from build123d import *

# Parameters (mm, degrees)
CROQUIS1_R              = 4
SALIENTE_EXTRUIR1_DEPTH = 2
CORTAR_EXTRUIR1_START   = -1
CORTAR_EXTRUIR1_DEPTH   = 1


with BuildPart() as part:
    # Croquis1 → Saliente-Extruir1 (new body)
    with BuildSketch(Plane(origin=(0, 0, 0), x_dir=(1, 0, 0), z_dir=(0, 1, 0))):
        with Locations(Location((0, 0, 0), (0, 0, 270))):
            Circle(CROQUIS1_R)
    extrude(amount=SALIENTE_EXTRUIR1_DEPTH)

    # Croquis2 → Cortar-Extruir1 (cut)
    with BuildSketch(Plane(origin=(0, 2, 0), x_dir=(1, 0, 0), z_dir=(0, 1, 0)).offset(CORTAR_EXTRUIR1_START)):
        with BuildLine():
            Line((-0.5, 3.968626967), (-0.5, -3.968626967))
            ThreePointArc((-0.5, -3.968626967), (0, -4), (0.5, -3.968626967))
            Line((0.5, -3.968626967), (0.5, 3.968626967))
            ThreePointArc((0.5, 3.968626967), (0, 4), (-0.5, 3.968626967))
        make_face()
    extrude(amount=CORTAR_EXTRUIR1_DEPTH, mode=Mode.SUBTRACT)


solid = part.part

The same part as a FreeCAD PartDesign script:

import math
import FreeCAD as App
import Part
import Sketcher
from FreeCAD import Vector

doc = App.newDocument("Part")
body = doc.addObject("PartDesign::Body", "Body")

sketch1 = body.newObject("Sketcher::SketchObject", "Sketch")
sketch1.AttachmentSupport = (doc.getObject("XZ_Plane"), [""])
sketch1.MapMode = "FlatFace"
sketch1.addGeometry(Part.Circle(Vector(0, 0, 0), Vector(0, 0, 1), 4), False)
sketch1.addConstraint(Sketcher.Constraint("Coincident", 0, 3, -1, 1))
sketch1.addConstraint(Sketcher.Constraint("Diameter", 0, 8.0))
pad1 = body.newObject("PartDesign::Pad", "Pad")
pad1.Profile = sketch1
pad1.Length = 2
pad1.Reversed = True

sketch2 = body.newObject("Sketcher::SketchObject", "Sketch001")
sketch2.AttachmentSupport = (doc.getObject("XZ_Plane"), [""])
sketch2.MapMode = "FlatFace"
sketch2.AttachmentOffset = App.Placement(Vector(0, 0, -1), App.Rotation())
sketch2.addGeometry(Part.LineSegment(Vector(-0.5, -4, 0), Vector(-0.5, 4, 0)), False)
sketch2.addGeometry(Part.ArcOfCircle(Part.Circle(Vector(0, 0, 0), Vector(0, 0, 1), 4), math.radians(82.82), math.radians(97.18)), False)
sketch2.addGeometry(Part.LineSegment(Vector(0.5, 4, 0), Vector(0.5, -4, 0)), False)
sketch2.addGeometry(Part.ArcOfCircle(Part.Circle(Vector(0, 0, 0), Vector(0, 0, 1), 4), math.radians(-97.18), math.radians(-82.82)), False)
sketch2.addConstraint(Sketcher.Constraint("Coincident", 0, 2, 1, 2))
sketch2.addConstraint(Sketcher.Constraint("Coincident", 1, 1, 2, 1))
sketch2.addConstraint(Sketcher.Constraint("Coincident", 2, 2, 3, 2))
sketch2.addConstraint(Sketcher.Constraint("Coincident", 3, 1, 0, 1))
sketch2.addConstraint(Sketcher.Constraint("Vertical", 0))
sketch2.addConstraint(Sketcher.Constraint("Vertical", 2))
sketch2.addConstraint(Sketcher.Constraint("Coincident", 1, 3, -1, 1))
sketch2.addConstraint(Sketcher.Constraint("Coincident", 3, 3, -1, 1))
sketch2.addConstraint(Sketcher.Constraint("Equal", 1, 3))
sketch2.addConstraint(Sketcher.Constraint("Horizontal", 0, 2, 1, 1))
sketch2.addConstraint(Sketcher.Constraint("Radius", 1, 4.0))
sketch2.addConstraint(Sketcher.Constraint("DistanceX", 0, 2, 1, 1, 1.0))
pocket1 = body.newObject("PartDesign::Pocket", "Pocket")
pocket1.Profile = sketch2
pocket1.Length = 1

doc.recompute()
